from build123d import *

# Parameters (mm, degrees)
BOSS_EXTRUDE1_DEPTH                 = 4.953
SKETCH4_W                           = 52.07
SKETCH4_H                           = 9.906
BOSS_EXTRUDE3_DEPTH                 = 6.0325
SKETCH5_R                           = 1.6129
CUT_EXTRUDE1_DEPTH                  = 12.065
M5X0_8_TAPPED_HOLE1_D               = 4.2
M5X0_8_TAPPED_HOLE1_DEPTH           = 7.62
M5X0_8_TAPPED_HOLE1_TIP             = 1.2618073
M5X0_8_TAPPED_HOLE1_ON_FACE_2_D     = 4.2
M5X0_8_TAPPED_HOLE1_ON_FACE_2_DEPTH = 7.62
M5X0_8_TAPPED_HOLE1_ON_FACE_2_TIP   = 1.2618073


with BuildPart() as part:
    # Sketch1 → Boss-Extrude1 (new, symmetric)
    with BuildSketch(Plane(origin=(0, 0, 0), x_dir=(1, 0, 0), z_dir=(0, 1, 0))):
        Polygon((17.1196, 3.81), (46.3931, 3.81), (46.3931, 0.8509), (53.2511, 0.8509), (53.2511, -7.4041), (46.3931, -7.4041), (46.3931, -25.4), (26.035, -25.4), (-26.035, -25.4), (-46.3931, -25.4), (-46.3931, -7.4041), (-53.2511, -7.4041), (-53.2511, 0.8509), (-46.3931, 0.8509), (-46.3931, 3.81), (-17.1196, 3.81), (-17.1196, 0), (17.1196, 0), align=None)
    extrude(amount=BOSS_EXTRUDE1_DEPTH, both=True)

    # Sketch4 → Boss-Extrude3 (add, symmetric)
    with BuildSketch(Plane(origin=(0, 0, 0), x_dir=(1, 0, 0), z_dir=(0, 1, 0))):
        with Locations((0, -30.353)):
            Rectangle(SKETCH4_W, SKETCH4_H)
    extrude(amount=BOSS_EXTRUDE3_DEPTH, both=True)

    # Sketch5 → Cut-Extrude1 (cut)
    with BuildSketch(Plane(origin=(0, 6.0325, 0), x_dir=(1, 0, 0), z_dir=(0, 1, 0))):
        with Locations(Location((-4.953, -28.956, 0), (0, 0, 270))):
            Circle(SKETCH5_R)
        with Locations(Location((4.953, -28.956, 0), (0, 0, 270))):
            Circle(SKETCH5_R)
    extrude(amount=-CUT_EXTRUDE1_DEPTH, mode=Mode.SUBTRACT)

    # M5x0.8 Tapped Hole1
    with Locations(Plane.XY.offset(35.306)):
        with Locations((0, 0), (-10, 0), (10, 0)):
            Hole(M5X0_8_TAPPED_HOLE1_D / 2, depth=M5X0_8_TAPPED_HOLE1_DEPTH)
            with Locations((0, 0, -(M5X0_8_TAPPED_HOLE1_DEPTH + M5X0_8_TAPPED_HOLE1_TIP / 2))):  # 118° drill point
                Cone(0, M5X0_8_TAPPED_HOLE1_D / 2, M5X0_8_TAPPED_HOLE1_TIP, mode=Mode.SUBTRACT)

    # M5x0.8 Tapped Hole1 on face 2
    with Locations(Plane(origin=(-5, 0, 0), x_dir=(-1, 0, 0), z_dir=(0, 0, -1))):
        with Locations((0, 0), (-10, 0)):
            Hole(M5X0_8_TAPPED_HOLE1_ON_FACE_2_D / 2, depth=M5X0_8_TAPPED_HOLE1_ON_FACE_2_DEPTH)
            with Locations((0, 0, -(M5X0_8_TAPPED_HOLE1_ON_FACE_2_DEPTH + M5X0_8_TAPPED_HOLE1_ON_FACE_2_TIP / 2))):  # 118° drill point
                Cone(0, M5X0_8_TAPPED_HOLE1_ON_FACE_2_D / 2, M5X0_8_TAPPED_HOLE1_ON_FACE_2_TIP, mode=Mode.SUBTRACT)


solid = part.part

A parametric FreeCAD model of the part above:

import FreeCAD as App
import Part
import Sketcher
from FreeCAD import Vector
Q = App.Units.Quantity

doc = App.newDocument("Part")
params = doc.addObject("Spreadsheet::Sheet", "Params")
for row, (alias, value) in enumerate([
    ("sketch1_width", "0.27 in"),
    ("sketch1_height", "0.15 in"),
    ("sketch1_width2", "1.348 in"),
    ("sketch1_width3", "3.653 in"),
    ("sketch1_height2", "0.325 in"),
    ("pad1_length", "0.39 in"),
    ("sketch2_width", "2.05 in"),
    ("sketch2_height", "0.39 in"),
    ("pad2_length", "0.475 in"),
    ("sketch3_diameter", "0.127 in"),
    ("pocket1_length", "0.475 in"),
    ("hole_diameter", "4.2 mm"),
    ("hole_depth", "0.3 in"),
    ("hole2_diameter", "4.2 mm"),
    ("hole2_depth", "0.3 in"),
], start=1):
    params.set(f"A{row}", alias)
    params.set(f"B{row}", "=" + value)
    params.setAlias(f"B{row}", alias)

body = doc.addObject("PartDesign::Body", "Body")

# Sketch on XZ plane
sketch1 = body.newObject("Sketcher::SketchObject", "Sketch")
sketch1.AttachmentSupport = (doc.getObject("XZ_Plane"), [""])
sketch1.MapMode = "FlatFace"
sketch1.addGeometry(Part.LineSegment(Vector(46.4, -3.8, 0), Vector(17.1, -3.8, 0)), False)
sketch1.addGeometry(Part.LineSegment(Vector(17.1, -3.8, 0), Vector(17.1, 0, 0)), False)
sketch1.addGeometry(Part.LineSegment(Vector(17.1, 0, 0), Vector(-17.1, 0, 0)), False)
sketch1.addGeometry(Part.LineSegment(Vector(-17.1, 0, 0), Vector(-17.1, -3.8, 0)), False)
sketch1.addGeometry(Part.LineSegment(Vector(-17.1, -3.8, 0), Vector(-46.4, -3.8, 0)), False)
sketch1.addGeometry(Part.LineSegment(Vector(-46.4, -3.8, 0), Vector(-46.4, -0.9, 0)), False)
sketch1.addGeometry(Part.LineSegment(Vector(-46.4, -0.9, 0), Vector(-53.3, -0.9, 0)), False)
sketch1.addGeometry(Part.LineSegment(Vector(-53.3, -0.9, 0), Vector(-53.3, 7.4, 0)), False)
sketch1.addGeometry(Part.LineSegment(Vector(-53.3, 7.4, 0), Vector(-46.4, 7.4, 0)), False)
sketch1.addGeometry(Part.LineSegment(Vector(-46.4, 7.4, 0), Vector(-46.4, 25.4, 0)), False)
sketch1.addGeometry(Part.LineSegment(Vector(-46.4, 25.4, 0), Vector(46.4, 25.4, 0)), False)
sketch1.addGeometry(Part.LineSegment(Vector(46.4, 25.4, 0), Vector(46.4, 7.4, 0)), False)
sketch1.addGeometry(Part.LineSegment(Vector(46.4, 7.4, 0), Vector(53.3, 7.4, 0)), False)
sketch1.addGeometry(Part.LineSegment(Vector(53.3, 7.4, 0), Vector(53.3, -0.9, 0)), False)
sketch1.addGeometry(Part.LineSegment(Vector(53.3, -0.9, 0), Vector(46.4, -0.9, 0)), False)
sketch1.addGeometry(Part.LineSegment(Vector(46.4, -0.9, 0), Vector(46.4, -3.8, 0)), False)
sketch1.addConstraint(Sketcher.Constraint("Coincident", 0, 2, 1, 1))
sketch1.addConstraint(Sketcher.Constraint("Coincident", 1, 2, 2, 1))
sketch1.addConstraint(Sketcher.Constraint("Coincident", 2, 2, 3, 1))
sketch1.addConstraint(Sketcher.Constraint("Coincident", 3, 2, 4, 1))
sketch1.addConstraint(Sketcher.Constraint("Coincident", 4, 2, 5, 1))
sketch1.addConstraint(Sketcher.Constraint("Coincident", 5, 2, 6, 1))
sketch1.addConstraint(Sketcher.Constraint("Coincident", 6, 2, 7, 1))
sketch1.addConstraint(Sketcher.Constraint("Coincident", 7, 2, 8, 1))
sketch1.addConstraint(Sketcher.Constraint("Coincident", 8, 2, 9, 1))
sketch1.addConstraint(Sketcher.Constraint("Coincident", 9, 2, 10, 1))
sketch1.addConstraint(Sketcher.Constraint("Coincident", 10, 2, 11, 1))
sketch1.addConstraint(Sketcher.Constraint("Coincident", 11, 2, 12, 1))
sketch1.addConstraint(Sketcher.Constraint("Coincident", 12, 2, 13, 1))
sketch1.addConstraint(Sketcher.Constraint("Coincident", 13, 2, 14, 1))
sketch1.addConstraint(Sketcher.Constraint("Coincident", 14, 2, 15, 1))
sketch1.addConstraint(Sketcher.Constraint("Coincident", 15, 2, 0, 1))
sketch1.addConstraint(Sketcher.Constraint("Horizontal", 0))
sketch1.addConstraint(Sketcher.Constraint("Vertical", 1))
sketch1.addConstraint(Sketcher.Constraint("Horizontal", 2))
sketch1.addConstraint(Sketcher.Constraint("Vertical", 3))
sketch1.addConstraint(Sketcher.Constraint("Horizontal", 4))
sketch1.addConstraint(Sketcher.Constraint("Vertical", 5))
sketch1.addConstraint(Sketcher.Constraint("Horizontal", 6))
sketch1.addConstraint(Sketcher.Constraint("Vertical", 7))
sketch1.addConstraint(Sketcher.Constraint("Horizontal", 8))
sketch1.addConstraint(Sketcher.Constraint("Vertical", 9))
sketch1.addConstraint(Sketcher.Constraint("Horizontal", 10))
sketch1.addConstraint(Sketcher.Constraint("Vertical", 11))
sketch1.addConstraint(Sketcher.Constraint("Horizontal", 12))
sketch1.addConstraint(Sketcher.Constraint("Vertical", 13))
sketch1.addConstraint(Sketcher.Constraint("Horizontal", 14))
sketch1.addConstraint(Sketcher.Constraint("Vertical", 15))
sketch1.addConstraint(Sketcher.Constraint("Symmetric", 1, 2, 2, 2, -1, 1))
sketch1.addConstraint(Sketcher.Constraint("Symmetric", 8, 2, 11, 2, -2))
sketch1.addConstraint(Sketcher.Constraint("Symmetric", 6, 2, 13, 2, -2))
sketch1.addConstraint(Sketcher.Constraint("Symmetric", 4, 2, 15, 2, -2))
sketch1.addConstraint(Sketcher.Constraint("Vertical", 5, 2, 8, 2))
sketch1.addConstraint(Sketcher.Constraint("DistanceY", -1, 1, 9, 2, Q("1 in")))
sketch1.addConstraint(Sketcher.Constraint("DistanceX", 6, 2, 6, 1, Q("0.27 in")))
sketch1.addConstraint(Sketcher.Constraint("DistanceY", 1, 1, 1, 2, Q("0.15 in")))
sketch1.addConstraint(Sketcher.Constraint("DistanceX", 2, 2, 2, 1, Q("1.348 in")))
sketch1.addConstraint(Sketcher.Constraint("DistanceX", 10, 1, 10, 2, Q("3.653 in")))
sketch1.addConstraint(Sketcher.Constraint("DistanceY", 7, 1, 7, 2, Q("0.325 in")))
sketch1.addConstraint(Sketcher.Constraint("DistanceY", 5, 1, 5, 2, Q("0.1165 in")))
sketch1.setExpression("Constraints[38]", "Params.sketch1_width")
sketch1.setExpression("Constraints[39]", "Params.sketch1_height")
sketch1.setExpression("Constraints[40]", "Params.sketch1_width2")
sketch1.setExpression("Constraints[41]", "Params.sketch1_width3")
sketch1.setExpression("Constraints[42]", "Params.sketch1_height2")
pad1 = body.newObject("PartDesign::Pad", "Pad")
pad1.Profile = sketch1
pad1.setExpression("Length", "Params.pad1_length")
pad1.Midplane = True

# Sketch on XZ plane
sketch2 = body.newObject("Sketcher::SketchObject", "Sketch001")
sketch2.AttachmentSupport = (doc.getObject("XZ_Plane"), [""])
sketch2.MapMode = "FlatFace"
sketch2.addGeometry(Part.LineSegment(Vector(-26, 25, 0), Vector(-26, 35, 0)), False)
sketch2.addGeometry(Part.LineSegment(Vector(-26, 35, 0), Vector(26, 35, 0)), False)
sketch2.addGeometry(Part.LineSegment(Vector(26, 35, 0), Vector(26, 25, 0)), False)
sketch2.addGeometry(Part.LineSegment(Vector(26, 25, 0), Vector(-26, 25, 0)), False)
sketch2.addConstraint(Sketcher.Constraint("Coincident", 0, 2, 1, 1))
sketch2.addConstraint(Sketcher.Constraint("Coincident", 1, 2, 2, 1))
sketch2.addConstraint(Sketcher.Constraint("Coincident", 2, 2, 3, 1))
sketch2.addConstraint(Sketcher.Constraint("Coincident", 3, 2, 0, 1))
sketch2.addConstraint(Sketcher.Constraint("Vertical", 0))
sketch2.addConstraint(Sketcher.Constraint("Horizontal", 1))
sketch2.addConstraint(Sketcher.Constraint("Vertical", 2))
sketch2.addConstraint(Sketcher.Constraint("Horizontal", 3))
sketch2.addConstraint(Sketcher.Constraint("DistanceY", -1, 1, 2, 2, Q("1 in")))
sketch2.addConstraint(Sketcher.Constraint("DistanceX", 1, 1, 1, 2, Q("2.05 in")))
sketch2.addConstraint(Sketcher.Constraint("DistanceY", 0, 1, 0, 2, Q("0.39 in")))
sketch2.addConstraint(Sketcher.Constraint("DistanceX", 0, 2, -1, 1, Q("1.025 in")))
sketch2.setExpression("Constraints[9]", "Params.sketch2_width")
sketch2.setExpression("Constraints[10]", "Params.sketch2_height")
pad2 = body.newObject("PartDesign::Pad", "Pad001")
pad2.Profile = sketch2
pad2.setExpression("Length", "Params.pad2_length")
pad2.Midplane = True

# Sketch on XZ plane
sketch3 = body.newObject("Sketcher::SketchObject", "Sketch002")
sketch3.AttachmentSupport = (doc.getObject("XZ_Plane"), [""])
sketch3.MapMode = "FlatFace"
sketch3.AttachmentOffset = App.Placement(Vector(0, 0, -0.2375 * 25.4), App.Rotation())
sketch3.addGeometry(Part.Circle(Vector(-5, 29, 0), Vector(0, 0, 1), 1.6), False)
sketch3.addGeometry(Part.Circle(Vector(5, 29, 0), Vector(0, 0, 1), 1.6), False)
sketch3.addConstraint(Sketcher.Constraint("Equal", 0, 1))
sketch3.addConstraint(Sketcher.Constraint("Symmetric", 0, 3, 1, 3, -2))
sketch3.addConstraint(Sketcher.Constraint("Diameter", 0, Q("0.127 in")))
sketch3.addConstraint(Sketcher.Constraint("DistanceY", -1, 1, 0, 3, Q("1.14 in")))
sketch3.addConstraint(Sketcher.Constraint("DistanceX", 0, 3, 1, 3, Q("0.39 in")))
sketch3.setExpression("Constraints[2]", "Params.sketch3_diameter")
pocket1 = body.newObject("PartDesign::Pocket", "Pocket")
pocket1.Profile = sketch3
pocket1.setExpression("Length", "Params.pocket1_length")
pocket1.Reversed = True

# Sketch on XY plane
sketch4 = body.newObject("Sketcher::SketchObject", "Sketch003")
sketch4.AttachmentSupport = (doc.getObject("XY_Plane"), [""])
sketch4.MapMode = "FlatFace"
sketch4.AttachmentOffset = App.Placement(Vector(0, 0, 1.39 * 25.4), App.Rotation())
sketch4.addGeometry(Part.Circle(Vector(0, 0, 0), Vector(0, 0, 1), 2.1), False)
sketch4.addGeometry(Part.Circle(Vector(-10, 0, 0), Vector(0, 0, 1), 2.1), False)
sketch4.addGeometry(Part.Circle(Vector(10, 0, 0), Vector(0, 0, 1), 2.1), False)
sketch4.addConstraint(Sketcher.Constraint("Coincident", 0, 3, -1, 1))
sketch4.addConstraint(Sketcher.Constraint("Equal", 0, 1))
sketch4.addConstraint(Sketcher.Constraint("Equal", 1, 2))
sketch4.addConstraint(Sketcher.Constraint("Symmetric", 1, 3, 2, 3, -1, 1))
sketch4.addConstraint(Sketcher.Constraint("PointOnObject", 1, 3, -1))
sketch4.addConstraint(Sketcher.Constraint("Diameter", 0, 4.2))
sketch4.addConstraint(Sketcher.Constraint("DistanceX", 1, 3, -1, 1, 10.0))
doc.recompute()
hole = body.newObject("PartDesign::Hole", "Hole")
hole.Profile = sketch4
hole.ThreadType = "None"
hole.setExpression("Diameter", "Params.hole_diameter")
hole.DepthType = "Dimension"
hole.setExpression("Depth", "Params.hole_depth")
hole.DrillPoint = "Angled"
hole.DrillPointAngle = 118

# Sketch on XY plane
sketch5 = body.newObject("Sketcher::SketchObject", "Sketch004")
sketch5.AttachmentSupport = (doc.getObject("XY_Plane"), [""])
sketch5.MapMode = "FlatFace"
sketch5.addGeometry(Part.Circle(Vector(-5, 0, 0), Vector(0, 0, 1), 2.1), False)
sketch5.addGeometry(Part.Circle(Vector(5, 0, 0), Vector(0, 0, 1), 2.1), False)
sketch5.addConstraint(Sketcher.Constraint("Equal", 0, 1))
sketch5.addConstraint(Sketcher.Constraint("Symmetric", 0, 3, 1, 3, -1, 1))
sketch5.addConstraint(Sketcher.Constraint("PointOnObject", 0, 3, -1))
sketch5.addConstraint(Sketcher.Constraint("Diameter", 0, 4.2))
sketch5.addConstraint(Sketcher.Constraint("DistanceX", 0, 3, -1, 1, 5.0))
doc.recompute()
hole2 = body.newObject("PartDesign::Hole", "Hole001")
hole2.Profile = sketch5
hole2.ThreadType = "None"
hole2.setExpression("Diameter", "Params.hole2_diameter")
hole2.DepthType = "Dimension"
hole2.setExpression("Depth", "Params.hole2_depth")
hole2.DrillPoint = "Angled"
hole2.DrillPointAngle = 118
hole2.Reversed = True

doc.recompute()
